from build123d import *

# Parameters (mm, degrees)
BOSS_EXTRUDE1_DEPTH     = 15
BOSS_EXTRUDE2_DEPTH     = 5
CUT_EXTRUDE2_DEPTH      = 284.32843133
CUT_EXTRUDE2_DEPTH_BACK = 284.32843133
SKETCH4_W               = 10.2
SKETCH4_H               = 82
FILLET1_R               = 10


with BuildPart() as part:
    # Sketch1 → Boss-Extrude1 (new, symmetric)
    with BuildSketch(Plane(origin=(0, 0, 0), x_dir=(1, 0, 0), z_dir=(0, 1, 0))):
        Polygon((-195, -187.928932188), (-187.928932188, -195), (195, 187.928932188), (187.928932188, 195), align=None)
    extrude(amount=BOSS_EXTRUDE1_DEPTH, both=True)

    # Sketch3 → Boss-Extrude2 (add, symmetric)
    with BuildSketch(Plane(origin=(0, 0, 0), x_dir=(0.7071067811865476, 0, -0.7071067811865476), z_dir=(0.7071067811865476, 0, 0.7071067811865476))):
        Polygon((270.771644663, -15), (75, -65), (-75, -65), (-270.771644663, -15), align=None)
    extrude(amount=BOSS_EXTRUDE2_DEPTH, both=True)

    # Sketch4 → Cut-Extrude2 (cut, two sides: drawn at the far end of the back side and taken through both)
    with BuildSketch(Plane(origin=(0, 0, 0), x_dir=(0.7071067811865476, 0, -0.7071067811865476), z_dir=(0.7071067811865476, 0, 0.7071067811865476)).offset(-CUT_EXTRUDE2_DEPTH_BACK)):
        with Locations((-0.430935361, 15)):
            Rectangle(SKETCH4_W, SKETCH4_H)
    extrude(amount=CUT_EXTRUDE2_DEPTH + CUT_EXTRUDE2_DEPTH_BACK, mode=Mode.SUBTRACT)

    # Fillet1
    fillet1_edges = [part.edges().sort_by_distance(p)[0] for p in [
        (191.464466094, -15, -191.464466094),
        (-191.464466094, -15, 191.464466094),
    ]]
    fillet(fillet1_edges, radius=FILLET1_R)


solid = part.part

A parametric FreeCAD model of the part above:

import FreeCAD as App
import Part
import Sketcher
Q = App.Units.Quantity


def edges_at(feature, points):
    """Names of the edges that pass closest to the given points."""
    edges = feature.Shape.Edges
    near = lambda p: min(range(len(edges)), key=lambda i: edges[i].distToShape(Part.Vertex(*p))[0])
    return sorted({f"Edge{near(p) + 1}" for p in points})

doc = App.newDocument("Part")
body = doc.addObject("PartDesign::Body", "Body")

# Sketch on XZ plane
sketch1 = doc.addObject("Sketcher::SketchObject", "Sketch")
body.addObject(sketch1)
sketch1.AttachmentSupport = (doc.XZ_Plane, [""])
sketch1.MapMode = "FlatFace"
sketch1.addGeometry([
    Part.LineSegment(App.Vector(-195, 187.928932, 0), App.Vector(-187.928932, 195, 0)),
    Part.LineSegment(App.Vector(-187.928932, 195, 0), App.Vector(195, -187.928932, 0)),
    Part.LineSegment(App.Vector(195, -187.928932, 0), App.Vector(187.928932, -195, 0)),
    Part.LineSegment(App.Vector(187.928932, -195, 0), App.Vector(-195, 187.928932, 0)),
], False)
sketch1.addConstraint([
    Sketcher.Constraint("Coincident", 0, 2, 1, 1),
    Sketcher.Constraint("Coincident", 1, 2, 2, 1),
    Sketcher.Constraint("Coincident", 2, 2, 3, 1),
    Sketcher.Constraint("Coincident", 3, 2, 0, 1),
    Sketcher.Constraint("Symmetric", 0, 2, 2, 2, -1, 1),
    Sketcher.Constraint("Symmetric", 1, 2, 3, 2, -1, 1),
    Sketcher.Constraint("Perpendicular", 0, 1),
    Sketcher.Constraint("Angle", 0, Q("45 deg")),
    Sketcher.Constraint("Distance", 0, 10.0),
    Sketcher.Constraint("DistanceY", -1, 1, 0, 2, 195.0),
])
pad1 = doc.addObject("PartDesign::Pad", "Pad")
body.addObject(pad1)
pad1.Profile = sketch1
pad1.Length = 30
pad1.Midplane = True

# Sketch on an angled plane
sketch2 = doc.addObject("Sketcher::SketchObject", "Sketch001")
body.addObject(sketch2)
sketch2.Placement = App.Placement(App.Vector(0, 0, 0), App.Rotation(App.Vector(0.707106781, 0, -0.707106781), App.Vector(0, 0.999999999, 0), App.Vector(0.707106781, 0, 0.707106781), "ZXY"))
sketch2.addGeometry([
    Part.LineSegment(App.Vector(75, -65, 0), App.Vector(270.771645, -15, 0)),
    Part.LineSegment(App.Vector(270.771645, -15, 0), App.Vector(-270.771645, -15, 0)),
    Part.LineSegment(App.Vector(-270.771645, -15, 0), App.Vector(-75, -65, 0)),
    Part.LineSegment(App.Vector(-75, -65, 0), App.Vector(75, -65, 0)),
], False)
sketch2.addConstraint([
    Sketcher.Constraint("Coincident", 0, 2, 1, 1),
    Sketcher.Constraint("Coincident", 1, 2, 2, 1),
    Sketcher.Constraint("Coincident", 2, 2, 3, 1),
    Sketcher.Constraint("Coincident", 3, 2, 0, 1),
    Sketcher.Constraint("Horizontal", 1),
    Sketcher.Constraint("Horizontal", 3),
    Sketcher.Constraint("Equal", 0, 2),
    Sketcher.Constraint("DistanceX", 3, 1, 3, 2, 150.0),
    Sketcher.Constraint("DistanceY", 0, 2, -1, 1, 15.0),
    Sketcher.Constraint("DistanceX", 2, 2, -1, 1, 75.0),
    Sketcher.Constraint("DistanceY", 2, 2, -1, 1, 65.0),
    Sketcher.Constraint("DistanceX", 1, 2, 1, 1, 541.543289),
])
pad2 = doc.addObject("PartDesign::Pad", "Pad001")
body.addObject(pad2)
pad2.Profile = sketch2
pad2.Length = 10
pad2.Midplane = True

# Sketch on an angled plane
sketch3 = doc.addObject("Sketcher::SketchObject", "Sketch002")
body.addObject(sketch3)
sketch3.Placement = App.Placement(App.Vector(0, 0, 0), App.Rotation(App.Vector(0.707106781, 0, -0.707106781), App.Vector(0, 0.999999999, 0), App.Vector(0.707106781, 0, 0.707106781), "ZXY"))
sketch3.addGeometry([
    Part.LineSegment(App.Vector(-5.530935, 56, 0), App.Vector(-5.530935, -26, 0)),
    Part.LineSegment(App.Vector(-5.530935, -26, 0), App.Vector(4.669065, -26, 0)),
    Part.LineSegment(App.Vector(4.669065, -26, 0), App.Vector(4.669065, 56, 0)),
    Part.LineSegment(App.Vector(4.669065, 56, 0), App.Vector(-5.530935, 56, 0)),
], False)
sketch3.addConstraint([
    Sketcher.Constraint("Coincident", 0, 2, 1, 1),
    Sketcher.Constraint("Coincident", 1, 2, 2, 1),
    Sketcher.Constraint("Coincident", 2, 2, 3, 1),
    Sketcher.Constraint("Coincident", 3, 2, 0, 1),
    Sketcher.Constraint("Vertical", 0),
    Sketcher.Constraint("Horizontal", 1),
    Sketcher.Constraint("Vertical", 2),
    Sketcher.Constraint("Horizontal", 3),
    Sketcher.Constraint("DistanceY", 0, 2, 0, 1, 82.0),
    Sketcher.Constraint("DistanceX", 1, 1, 1, 2, 10.2),
    Sketcher.Constraint("DistanceY", 0, 2, -1, 1, 26.0),
    Sketcher.Constraint("DistanceX", 0, 2, -1, 1, 5.530935),
])
pocket1 = doc.addObject("PartDesign::Pocket", "Pocket")
body.addObject(pocket1)
pocket1.Profile = sketch3
pocket1.Type = "ThroughAll"
pocket1.Midplane = True
doc.recompute()

fillet = doc.addObject("PartDesign::Fillet", "Fillet")
body.addObject(fillet)
fillet.Base = (pocket1, edges_at(pocket1, [(191.464, -15, -191.464), (-191.464, -15, 191.464)]))
fillet.Radius = 10

doc.recompute()
